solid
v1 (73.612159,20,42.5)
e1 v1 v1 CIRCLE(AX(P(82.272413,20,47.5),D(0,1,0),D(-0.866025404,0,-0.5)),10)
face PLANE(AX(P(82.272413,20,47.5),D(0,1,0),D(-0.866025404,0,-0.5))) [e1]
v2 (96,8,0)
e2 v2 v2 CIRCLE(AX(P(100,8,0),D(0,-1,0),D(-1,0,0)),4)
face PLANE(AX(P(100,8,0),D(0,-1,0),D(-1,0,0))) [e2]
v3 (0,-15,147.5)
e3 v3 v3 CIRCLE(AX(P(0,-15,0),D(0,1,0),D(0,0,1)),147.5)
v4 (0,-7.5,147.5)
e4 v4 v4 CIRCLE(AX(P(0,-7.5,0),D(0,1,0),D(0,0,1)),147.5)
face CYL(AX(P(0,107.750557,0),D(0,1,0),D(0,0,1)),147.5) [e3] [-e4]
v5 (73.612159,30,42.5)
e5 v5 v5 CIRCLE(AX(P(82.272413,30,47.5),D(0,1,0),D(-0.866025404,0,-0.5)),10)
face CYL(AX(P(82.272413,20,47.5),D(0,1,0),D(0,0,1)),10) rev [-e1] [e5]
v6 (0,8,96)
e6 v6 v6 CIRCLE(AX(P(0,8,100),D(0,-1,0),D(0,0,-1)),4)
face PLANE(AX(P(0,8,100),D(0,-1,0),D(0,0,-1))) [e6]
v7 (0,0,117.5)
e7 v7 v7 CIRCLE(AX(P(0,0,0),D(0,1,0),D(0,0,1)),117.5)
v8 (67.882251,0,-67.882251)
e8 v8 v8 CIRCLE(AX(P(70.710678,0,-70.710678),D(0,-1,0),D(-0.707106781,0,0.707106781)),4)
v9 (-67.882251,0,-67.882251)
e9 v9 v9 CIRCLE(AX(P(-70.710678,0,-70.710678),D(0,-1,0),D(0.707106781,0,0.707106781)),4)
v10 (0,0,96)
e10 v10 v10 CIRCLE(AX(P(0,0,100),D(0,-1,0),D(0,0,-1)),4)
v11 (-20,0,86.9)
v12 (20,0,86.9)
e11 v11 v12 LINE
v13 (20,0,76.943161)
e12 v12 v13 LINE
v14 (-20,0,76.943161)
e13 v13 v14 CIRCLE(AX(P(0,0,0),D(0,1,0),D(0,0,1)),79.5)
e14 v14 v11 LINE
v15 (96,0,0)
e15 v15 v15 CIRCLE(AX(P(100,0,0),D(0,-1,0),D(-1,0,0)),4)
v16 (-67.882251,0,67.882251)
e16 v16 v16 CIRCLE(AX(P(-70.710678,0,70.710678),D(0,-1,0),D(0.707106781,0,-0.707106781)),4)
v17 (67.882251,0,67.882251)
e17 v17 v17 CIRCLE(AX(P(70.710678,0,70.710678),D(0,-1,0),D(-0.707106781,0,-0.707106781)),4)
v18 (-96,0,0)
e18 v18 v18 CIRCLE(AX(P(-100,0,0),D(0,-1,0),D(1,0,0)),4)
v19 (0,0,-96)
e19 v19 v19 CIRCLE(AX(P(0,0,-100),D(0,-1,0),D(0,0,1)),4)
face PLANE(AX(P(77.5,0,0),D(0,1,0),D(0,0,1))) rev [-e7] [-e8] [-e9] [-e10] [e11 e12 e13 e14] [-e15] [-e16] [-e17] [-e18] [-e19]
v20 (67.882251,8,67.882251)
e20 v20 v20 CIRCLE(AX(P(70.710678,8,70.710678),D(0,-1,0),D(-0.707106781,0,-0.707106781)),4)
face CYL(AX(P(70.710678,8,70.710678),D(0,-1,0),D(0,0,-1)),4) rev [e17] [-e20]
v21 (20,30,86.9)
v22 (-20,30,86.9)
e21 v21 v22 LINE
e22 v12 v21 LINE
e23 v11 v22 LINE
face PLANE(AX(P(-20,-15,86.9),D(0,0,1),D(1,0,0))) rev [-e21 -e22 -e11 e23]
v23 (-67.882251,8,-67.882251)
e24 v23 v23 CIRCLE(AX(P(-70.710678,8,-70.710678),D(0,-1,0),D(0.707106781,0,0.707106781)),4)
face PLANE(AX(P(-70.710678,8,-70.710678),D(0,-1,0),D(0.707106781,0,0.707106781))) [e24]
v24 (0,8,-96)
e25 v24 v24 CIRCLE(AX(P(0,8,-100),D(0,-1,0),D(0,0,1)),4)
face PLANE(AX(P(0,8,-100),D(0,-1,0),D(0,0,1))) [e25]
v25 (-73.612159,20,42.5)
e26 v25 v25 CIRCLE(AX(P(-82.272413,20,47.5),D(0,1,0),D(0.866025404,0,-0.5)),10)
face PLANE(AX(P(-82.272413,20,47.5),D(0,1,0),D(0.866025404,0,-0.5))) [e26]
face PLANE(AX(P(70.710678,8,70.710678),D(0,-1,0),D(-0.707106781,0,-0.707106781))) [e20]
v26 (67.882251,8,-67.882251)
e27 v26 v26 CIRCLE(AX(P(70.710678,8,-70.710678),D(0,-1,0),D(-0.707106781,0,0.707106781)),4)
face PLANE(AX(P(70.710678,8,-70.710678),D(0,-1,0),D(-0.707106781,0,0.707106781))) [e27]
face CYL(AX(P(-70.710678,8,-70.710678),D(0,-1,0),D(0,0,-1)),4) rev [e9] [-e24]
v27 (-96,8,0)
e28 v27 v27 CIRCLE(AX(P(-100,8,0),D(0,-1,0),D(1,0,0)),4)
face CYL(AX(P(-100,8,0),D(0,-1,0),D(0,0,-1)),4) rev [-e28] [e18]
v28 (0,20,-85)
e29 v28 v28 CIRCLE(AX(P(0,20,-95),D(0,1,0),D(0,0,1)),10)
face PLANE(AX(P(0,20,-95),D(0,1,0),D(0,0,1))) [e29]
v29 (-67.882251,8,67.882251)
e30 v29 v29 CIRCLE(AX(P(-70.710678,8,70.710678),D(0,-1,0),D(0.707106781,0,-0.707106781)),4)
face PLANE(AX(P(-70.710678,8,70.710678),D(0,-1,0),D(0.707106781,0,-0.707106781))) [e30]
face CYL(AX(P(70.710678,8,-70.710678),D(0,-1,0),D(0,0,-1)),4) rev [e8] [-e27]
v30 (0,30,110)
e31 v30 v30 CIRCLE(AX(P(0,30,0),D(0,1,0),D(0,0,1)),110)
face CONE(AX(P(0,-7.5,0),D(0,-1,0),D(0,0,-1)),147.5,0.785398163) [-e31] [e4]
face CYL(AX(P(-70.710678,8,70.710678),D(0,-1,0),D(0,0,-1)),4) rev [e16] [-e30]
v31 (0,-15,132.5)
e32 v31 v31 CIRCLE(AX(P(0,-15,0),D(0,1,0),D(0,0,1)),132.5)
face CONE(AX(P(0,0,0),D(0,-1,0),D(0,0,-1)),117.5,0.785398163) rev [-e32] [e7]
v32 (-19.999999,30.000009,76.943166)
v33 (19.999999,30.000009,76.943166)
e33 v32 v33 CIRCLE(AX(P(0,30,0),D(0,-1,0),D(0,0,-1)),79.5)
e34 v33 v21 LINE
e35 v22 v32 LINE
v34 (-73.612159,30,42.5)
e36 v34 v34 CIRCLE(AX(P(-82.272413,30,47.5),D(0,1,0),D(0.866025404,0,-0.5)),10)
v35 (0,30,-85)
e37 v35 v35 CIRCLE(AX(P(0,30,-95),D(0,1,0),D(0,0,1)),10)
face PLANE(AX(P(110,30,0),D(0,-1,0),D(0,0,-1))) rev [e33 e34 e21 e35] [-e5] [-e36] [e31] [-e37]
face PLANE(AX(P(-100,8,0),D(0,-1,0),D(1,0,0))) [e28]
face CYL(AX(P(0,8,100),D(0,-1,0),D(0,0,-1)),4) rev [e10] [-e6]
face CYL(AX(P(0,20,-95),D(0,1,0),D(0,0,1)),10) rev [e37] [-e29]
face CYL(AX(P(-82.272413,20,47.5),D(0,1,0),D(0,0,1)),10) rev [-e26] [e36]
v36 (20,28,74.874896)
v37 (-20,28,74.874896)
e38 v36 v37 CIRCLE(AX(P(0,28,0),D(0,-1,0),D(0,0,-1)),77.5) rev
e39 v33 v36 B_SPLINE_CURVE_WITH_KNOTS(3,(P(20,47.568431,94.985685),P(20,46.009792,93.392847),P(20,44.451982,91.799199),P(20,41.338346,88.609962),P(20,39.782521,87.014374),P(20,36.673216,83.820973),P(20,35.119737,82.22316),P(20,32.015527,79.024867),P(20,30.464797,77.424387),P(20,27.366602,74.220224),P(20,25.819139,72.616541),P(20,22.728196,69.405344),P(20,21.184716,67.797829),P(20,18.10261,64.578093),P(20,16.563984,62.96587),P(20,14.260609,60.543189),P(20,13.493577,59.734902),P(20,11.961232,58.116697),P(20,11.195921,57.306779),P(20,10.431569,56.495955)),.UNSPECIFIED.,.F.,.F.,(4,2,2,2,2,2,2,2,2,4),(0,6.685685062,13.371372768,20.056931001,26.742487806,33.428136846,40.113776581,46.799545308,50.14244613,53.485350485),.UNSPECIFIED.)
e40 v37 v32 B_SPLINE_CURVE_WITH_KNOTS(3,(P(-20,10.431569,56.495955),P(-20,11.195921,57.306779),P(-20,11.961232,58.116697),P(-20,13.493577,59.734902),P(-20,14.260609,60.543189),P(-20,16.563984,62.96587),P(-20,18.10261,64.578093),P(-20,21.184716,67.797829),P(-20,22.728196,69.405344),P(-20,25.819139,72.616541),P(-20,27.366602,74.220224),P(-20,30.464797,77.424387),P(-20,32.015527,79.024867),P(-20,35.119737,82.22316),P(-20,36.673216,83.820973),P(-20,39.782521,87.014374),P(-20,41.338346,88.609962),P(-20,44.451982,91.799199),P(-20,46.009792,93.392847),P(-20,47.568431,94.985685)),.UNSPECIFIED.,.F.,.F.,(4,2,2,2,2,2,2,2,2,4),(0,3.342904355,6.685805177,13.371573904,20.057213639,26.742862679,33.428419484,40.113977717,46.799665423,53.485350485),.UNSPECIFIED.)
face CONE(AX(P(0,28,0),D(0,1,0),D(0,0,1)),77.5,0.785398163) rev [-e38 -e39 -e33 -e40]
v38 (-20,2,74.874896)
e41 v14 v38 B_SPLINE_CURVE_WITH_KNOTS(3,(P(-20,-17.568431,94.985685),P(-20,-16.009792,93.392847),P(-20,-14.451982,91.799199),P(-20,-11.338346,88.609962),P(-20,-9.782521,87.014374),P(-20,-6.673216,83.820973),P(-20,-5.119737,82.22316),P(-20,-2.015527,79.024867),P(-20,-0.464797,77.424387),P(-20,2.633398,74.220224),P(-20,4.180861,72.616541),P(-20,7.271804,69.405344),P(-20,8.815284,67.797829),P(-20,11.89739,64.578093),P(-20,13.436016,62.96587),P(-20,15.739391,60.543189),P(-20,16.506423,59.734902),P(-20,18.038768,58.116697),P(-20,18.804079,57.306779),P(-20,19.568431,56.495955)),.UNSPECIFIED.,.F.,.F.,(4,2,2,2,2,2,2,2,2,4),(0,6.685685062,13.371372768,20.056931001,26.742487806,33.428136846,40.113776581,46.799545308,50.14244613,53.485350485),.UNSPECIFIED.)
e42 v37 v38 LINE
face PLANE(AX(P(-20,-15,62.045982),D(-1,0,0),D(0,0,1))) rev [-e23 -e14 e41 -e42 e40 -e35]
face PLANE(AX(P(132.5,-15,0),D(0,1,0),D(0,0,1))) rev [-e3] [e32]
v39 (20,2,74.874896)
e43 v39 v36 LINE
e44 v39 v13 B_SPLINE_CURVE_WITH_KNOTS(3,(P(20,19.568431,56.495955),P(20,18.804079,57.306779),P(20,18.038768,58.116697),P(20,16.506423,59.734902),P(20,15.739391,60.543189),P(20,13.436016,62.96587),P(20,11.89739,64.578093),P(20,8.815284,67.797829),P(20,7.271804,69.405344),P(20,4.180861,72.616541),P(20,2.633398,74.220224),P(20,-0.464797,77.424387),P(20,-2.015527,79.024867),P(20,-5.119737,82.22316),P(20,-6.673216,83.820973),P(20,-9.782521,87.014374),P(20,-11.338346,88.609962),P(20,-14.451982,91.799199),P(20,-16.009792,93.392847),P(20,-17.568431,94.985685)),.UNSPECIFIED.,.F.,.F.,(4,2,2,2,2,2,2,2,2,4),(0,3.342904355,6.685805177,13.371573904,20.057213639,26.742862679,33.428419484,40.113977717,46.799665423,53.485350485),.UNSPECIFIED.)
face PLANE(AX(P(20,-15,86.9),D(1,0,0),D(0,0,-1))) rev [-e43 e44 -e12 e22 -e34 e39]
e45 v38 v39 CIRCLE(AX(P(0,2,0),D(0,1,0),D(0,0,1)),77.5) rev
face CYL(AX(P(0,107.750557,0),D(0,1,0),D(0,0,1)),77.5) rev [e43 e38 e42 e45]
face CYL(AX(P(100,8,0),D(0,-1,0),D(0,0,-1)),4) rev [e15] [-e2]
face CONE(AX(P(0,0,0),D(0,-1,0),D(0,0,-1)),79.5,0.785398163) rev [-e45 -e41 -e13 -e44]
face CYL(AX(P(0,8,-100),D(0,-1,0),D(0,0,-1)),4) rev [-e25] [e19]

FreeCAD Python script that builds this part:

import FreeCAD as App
import Part
import Sketcher
Q = App.Units.Quantity


def edges_at(feature, points):
    """Names of the edges that pass closest to the given points."""
    edges = feature.Shape.Edges
    near = lambda p: min(range(len(edges)), key=lambda i: edges[i].distToShape(Part.Vertex(*p))[0])
    return sorted({f"Edge{near(p) + 1}" for p in points})


def add_polygon(sketch, points):
    """Adds a closed chain of lines whose ends are joined by coincident constraints."""
    first, n = sketch.GeometryCount, len(points)
    for a, b in zip(points, points[1:] + points[:1]):
        sketch.addGeometry(Part.LineSegment(App.Vector(*a, 0), App.Vector(*b, 0)), False)
    for i in range(n):
        sketch.addConstraint(Sketcher.Constraint("Coincident", first + i, 2, first + (i + 1) % n, 1))

doc = App.newDocument("Part")
body = doc.addObject("PartDesign::Body", "Body")

# Sketch on XY plane
sketch1 = doc.addObject("Sketcher::SketchObject", "Sketch")
body.addObject(sketch1)
sketch1.AttachmentSupport = (doc.XY_Plane, [""])
sketch1.MapMode = "FlatFace"
add_polygon(sketch1, [(78, 30), (78, 0), (118, 0), (132, -15), (148, -15), (148, -8), (110, 30)])  # lines 0-6
sketch1.addConstraint([
    Sketcher.Constraint("Vertical", 0),
    Sketcher.Constraint("Horizontal", 1),
    Sketcher.Constraint("Horizontal", 3),
    Sketcher.Constraint("Vertical", 4),
    Sketcher.Constraint("Horizontal", 6),
    Sketcher.Constraint("PointOnObject", 0, 2, -1),
    Sketcher.Constraint("Parallel", 2, 5),
    Sketcher.Constraint("DistanceX", 1, 1, 1, 2, 40.0),
    Sketcher.Constraint("DistanceX", 3, 1, 3, 2, 15.0),
    Sketcher.Constraint("DistanceY", 0, 2, 0, 1, 30.0),
    Sketcher.Constraint("Angle", 2, Q("-45 deg")),
    Sketcher.Constraint("DistanceX", 6, 2, 6, 1, 32.5),
    Sketcher.Constraint("DistanceY", 2, 2, -1, 1, 15.0),
    Sketcher.Constraint("DistanceX", -1, 1, 5, 2, 110.0),
])
revolution = doc.addObject("PartDesign::Revolution", "Revolution")
body.addObject(revolution)
revolution.Profile = sketch1
revolution.ReferenceAxis = (sketch1, ["V_Axis"])
revolution.Angle = 360
doc.recompute()

chamfer = doc.addObject("PartDesign::Chamfer", "Chamfer")
body.addObject(chamfer)
chamfer.Base = (revolution, edges_at(revolution, [(0, 0, -77.5), (0, 30, -77.5)]))
chamfer.Size = 2

# Sketch on XZ plane
sketch2 = doc.addObject("Sketcher::SketchObject", "Sketch001")
body.addObject(sketch2)
sketch2.AttachmentSupport = (doc.XZ_Plane, [""])
sketch2.MapMode = "FlatFace"
sketch2.AttachmentOffset = App.Placement(App.Vector(0, 0, -30), App.Rotation())
sketch2.addGeometry(Part.Circle(App.Vector(0, -95, 0), App.Vector(0, 0, 1), 10), False)
sketch2.addConstraint([
    Sketcher.Constraint("PointOnObject", 0, 3, -2),
    Sketcher.Constraint("Diameter", 0, 20.0),
    Sketcher.Constraint("DistanceY", 0, 3, -1, 1, 95.0),
])
pocket1 = doc.addObject("PartDesign::Pocket", "Pocket")
body.addObject(pocket1)
pocket1.Profile = sketch2
pocket1.Length = 10
pocket1.Reversed = True
doc.recompute()

polarpattern = doc.addObject("PartDesign::PolarPattern", "PolarPattern")
body.addObject(polarpattern)
polarpattern.Originals = [pocket1]
polarpattern.Axis = (doc.Y_Axis, [""])
polarpattern.Angle = 360
polarpattern.Occurrences = 3
body.Tip = polarpattern

# Sketch on XZ plane
sketch3 = doc.addObject("Sketcher::SketchObject", "Sketch002")
body.addObject(sketch3)
sketch3.AttachmentSupport = (doc.XZ_Plane, [""])
sketch3.MapMode = "FlatFace"
sketch3.AttachmentOffset = App.Placement(App.Vector(0, 0, -30), App.Rotation())
add_polygon(sketch3, [(-20, 62), (-20, 87), (20, 87), (20, 62)])  # lines 0-3
sketch3.addConstraint([
    Sketcher.Constraint("Vertical", 0),
    Sketcher.Constraint("Horizontal", 1),
    Sketcher.Constraint("Vertical", 2),
    Sketcher.Constraint("Horizontal", 3),
    Sketcher.Constraint("DistanceX", 1, 1, 1, 2, 40.0),
    Sketcher.Constraint("DistanceX", 0, 2, -1, 1, 20.0),
    Sketcher.Constraint("DistanceY", -1, 1, 0, 2, 86.9),
    Sketcher.Constraint("DistanceY", 0, 1, 0, 2, 24.854018),
])
pocket2 = doc.addObject("PartDesign::Pocket", "Pocket001")
body.addObject(pocket2)
pocket2.Profile = sketch3
pocket2.Type = "ThroughAll"
pocket2.Midplane = True

# Sketch on XZ plane
sketch4 = doc.addObject("Sketcher::SketchObject", "Sketch003")
body.addObject(sketch4)
sketch4.AttachmentSupport = (doc.XZ_Plane, [""])
sketch4.MapMode = "FlatFace"
sketch4.addGeometry(Part.Circle(App.Vector(0, 100, 0), App.Vector(0, 0, 1), 4), False)
sketch4.addConstraint([
    Sketcher.Constraint("PointOnObject", 0, 3, -2),
    Sketcher.Constraint("Diameter", 0, 8.0),
    Sketcher.Constraint("DistanceY", -1, 1, 0, 3, 100.0),
])
pocket3 = doc.addObject("PartDesign::Pocket", "Pocket002")
body.addObject(pocket3)
pocket3.Profile = sketch4
pocket3.Length = 8
doc.recompute()

polarpattern2 = doc.addObject("PartDesign::PolarPattern", "PolarPattern001")
body.addObject(polarpattern2)
polarpattern2.Originals = [pocket3]
polarpattern2.Axis = (doc.Y_Axis, [""])
polarpattern2.Angle = 360
polarpattern2.Occurrences = 8
body.Tip = polarpattern2

doc.recompute()
